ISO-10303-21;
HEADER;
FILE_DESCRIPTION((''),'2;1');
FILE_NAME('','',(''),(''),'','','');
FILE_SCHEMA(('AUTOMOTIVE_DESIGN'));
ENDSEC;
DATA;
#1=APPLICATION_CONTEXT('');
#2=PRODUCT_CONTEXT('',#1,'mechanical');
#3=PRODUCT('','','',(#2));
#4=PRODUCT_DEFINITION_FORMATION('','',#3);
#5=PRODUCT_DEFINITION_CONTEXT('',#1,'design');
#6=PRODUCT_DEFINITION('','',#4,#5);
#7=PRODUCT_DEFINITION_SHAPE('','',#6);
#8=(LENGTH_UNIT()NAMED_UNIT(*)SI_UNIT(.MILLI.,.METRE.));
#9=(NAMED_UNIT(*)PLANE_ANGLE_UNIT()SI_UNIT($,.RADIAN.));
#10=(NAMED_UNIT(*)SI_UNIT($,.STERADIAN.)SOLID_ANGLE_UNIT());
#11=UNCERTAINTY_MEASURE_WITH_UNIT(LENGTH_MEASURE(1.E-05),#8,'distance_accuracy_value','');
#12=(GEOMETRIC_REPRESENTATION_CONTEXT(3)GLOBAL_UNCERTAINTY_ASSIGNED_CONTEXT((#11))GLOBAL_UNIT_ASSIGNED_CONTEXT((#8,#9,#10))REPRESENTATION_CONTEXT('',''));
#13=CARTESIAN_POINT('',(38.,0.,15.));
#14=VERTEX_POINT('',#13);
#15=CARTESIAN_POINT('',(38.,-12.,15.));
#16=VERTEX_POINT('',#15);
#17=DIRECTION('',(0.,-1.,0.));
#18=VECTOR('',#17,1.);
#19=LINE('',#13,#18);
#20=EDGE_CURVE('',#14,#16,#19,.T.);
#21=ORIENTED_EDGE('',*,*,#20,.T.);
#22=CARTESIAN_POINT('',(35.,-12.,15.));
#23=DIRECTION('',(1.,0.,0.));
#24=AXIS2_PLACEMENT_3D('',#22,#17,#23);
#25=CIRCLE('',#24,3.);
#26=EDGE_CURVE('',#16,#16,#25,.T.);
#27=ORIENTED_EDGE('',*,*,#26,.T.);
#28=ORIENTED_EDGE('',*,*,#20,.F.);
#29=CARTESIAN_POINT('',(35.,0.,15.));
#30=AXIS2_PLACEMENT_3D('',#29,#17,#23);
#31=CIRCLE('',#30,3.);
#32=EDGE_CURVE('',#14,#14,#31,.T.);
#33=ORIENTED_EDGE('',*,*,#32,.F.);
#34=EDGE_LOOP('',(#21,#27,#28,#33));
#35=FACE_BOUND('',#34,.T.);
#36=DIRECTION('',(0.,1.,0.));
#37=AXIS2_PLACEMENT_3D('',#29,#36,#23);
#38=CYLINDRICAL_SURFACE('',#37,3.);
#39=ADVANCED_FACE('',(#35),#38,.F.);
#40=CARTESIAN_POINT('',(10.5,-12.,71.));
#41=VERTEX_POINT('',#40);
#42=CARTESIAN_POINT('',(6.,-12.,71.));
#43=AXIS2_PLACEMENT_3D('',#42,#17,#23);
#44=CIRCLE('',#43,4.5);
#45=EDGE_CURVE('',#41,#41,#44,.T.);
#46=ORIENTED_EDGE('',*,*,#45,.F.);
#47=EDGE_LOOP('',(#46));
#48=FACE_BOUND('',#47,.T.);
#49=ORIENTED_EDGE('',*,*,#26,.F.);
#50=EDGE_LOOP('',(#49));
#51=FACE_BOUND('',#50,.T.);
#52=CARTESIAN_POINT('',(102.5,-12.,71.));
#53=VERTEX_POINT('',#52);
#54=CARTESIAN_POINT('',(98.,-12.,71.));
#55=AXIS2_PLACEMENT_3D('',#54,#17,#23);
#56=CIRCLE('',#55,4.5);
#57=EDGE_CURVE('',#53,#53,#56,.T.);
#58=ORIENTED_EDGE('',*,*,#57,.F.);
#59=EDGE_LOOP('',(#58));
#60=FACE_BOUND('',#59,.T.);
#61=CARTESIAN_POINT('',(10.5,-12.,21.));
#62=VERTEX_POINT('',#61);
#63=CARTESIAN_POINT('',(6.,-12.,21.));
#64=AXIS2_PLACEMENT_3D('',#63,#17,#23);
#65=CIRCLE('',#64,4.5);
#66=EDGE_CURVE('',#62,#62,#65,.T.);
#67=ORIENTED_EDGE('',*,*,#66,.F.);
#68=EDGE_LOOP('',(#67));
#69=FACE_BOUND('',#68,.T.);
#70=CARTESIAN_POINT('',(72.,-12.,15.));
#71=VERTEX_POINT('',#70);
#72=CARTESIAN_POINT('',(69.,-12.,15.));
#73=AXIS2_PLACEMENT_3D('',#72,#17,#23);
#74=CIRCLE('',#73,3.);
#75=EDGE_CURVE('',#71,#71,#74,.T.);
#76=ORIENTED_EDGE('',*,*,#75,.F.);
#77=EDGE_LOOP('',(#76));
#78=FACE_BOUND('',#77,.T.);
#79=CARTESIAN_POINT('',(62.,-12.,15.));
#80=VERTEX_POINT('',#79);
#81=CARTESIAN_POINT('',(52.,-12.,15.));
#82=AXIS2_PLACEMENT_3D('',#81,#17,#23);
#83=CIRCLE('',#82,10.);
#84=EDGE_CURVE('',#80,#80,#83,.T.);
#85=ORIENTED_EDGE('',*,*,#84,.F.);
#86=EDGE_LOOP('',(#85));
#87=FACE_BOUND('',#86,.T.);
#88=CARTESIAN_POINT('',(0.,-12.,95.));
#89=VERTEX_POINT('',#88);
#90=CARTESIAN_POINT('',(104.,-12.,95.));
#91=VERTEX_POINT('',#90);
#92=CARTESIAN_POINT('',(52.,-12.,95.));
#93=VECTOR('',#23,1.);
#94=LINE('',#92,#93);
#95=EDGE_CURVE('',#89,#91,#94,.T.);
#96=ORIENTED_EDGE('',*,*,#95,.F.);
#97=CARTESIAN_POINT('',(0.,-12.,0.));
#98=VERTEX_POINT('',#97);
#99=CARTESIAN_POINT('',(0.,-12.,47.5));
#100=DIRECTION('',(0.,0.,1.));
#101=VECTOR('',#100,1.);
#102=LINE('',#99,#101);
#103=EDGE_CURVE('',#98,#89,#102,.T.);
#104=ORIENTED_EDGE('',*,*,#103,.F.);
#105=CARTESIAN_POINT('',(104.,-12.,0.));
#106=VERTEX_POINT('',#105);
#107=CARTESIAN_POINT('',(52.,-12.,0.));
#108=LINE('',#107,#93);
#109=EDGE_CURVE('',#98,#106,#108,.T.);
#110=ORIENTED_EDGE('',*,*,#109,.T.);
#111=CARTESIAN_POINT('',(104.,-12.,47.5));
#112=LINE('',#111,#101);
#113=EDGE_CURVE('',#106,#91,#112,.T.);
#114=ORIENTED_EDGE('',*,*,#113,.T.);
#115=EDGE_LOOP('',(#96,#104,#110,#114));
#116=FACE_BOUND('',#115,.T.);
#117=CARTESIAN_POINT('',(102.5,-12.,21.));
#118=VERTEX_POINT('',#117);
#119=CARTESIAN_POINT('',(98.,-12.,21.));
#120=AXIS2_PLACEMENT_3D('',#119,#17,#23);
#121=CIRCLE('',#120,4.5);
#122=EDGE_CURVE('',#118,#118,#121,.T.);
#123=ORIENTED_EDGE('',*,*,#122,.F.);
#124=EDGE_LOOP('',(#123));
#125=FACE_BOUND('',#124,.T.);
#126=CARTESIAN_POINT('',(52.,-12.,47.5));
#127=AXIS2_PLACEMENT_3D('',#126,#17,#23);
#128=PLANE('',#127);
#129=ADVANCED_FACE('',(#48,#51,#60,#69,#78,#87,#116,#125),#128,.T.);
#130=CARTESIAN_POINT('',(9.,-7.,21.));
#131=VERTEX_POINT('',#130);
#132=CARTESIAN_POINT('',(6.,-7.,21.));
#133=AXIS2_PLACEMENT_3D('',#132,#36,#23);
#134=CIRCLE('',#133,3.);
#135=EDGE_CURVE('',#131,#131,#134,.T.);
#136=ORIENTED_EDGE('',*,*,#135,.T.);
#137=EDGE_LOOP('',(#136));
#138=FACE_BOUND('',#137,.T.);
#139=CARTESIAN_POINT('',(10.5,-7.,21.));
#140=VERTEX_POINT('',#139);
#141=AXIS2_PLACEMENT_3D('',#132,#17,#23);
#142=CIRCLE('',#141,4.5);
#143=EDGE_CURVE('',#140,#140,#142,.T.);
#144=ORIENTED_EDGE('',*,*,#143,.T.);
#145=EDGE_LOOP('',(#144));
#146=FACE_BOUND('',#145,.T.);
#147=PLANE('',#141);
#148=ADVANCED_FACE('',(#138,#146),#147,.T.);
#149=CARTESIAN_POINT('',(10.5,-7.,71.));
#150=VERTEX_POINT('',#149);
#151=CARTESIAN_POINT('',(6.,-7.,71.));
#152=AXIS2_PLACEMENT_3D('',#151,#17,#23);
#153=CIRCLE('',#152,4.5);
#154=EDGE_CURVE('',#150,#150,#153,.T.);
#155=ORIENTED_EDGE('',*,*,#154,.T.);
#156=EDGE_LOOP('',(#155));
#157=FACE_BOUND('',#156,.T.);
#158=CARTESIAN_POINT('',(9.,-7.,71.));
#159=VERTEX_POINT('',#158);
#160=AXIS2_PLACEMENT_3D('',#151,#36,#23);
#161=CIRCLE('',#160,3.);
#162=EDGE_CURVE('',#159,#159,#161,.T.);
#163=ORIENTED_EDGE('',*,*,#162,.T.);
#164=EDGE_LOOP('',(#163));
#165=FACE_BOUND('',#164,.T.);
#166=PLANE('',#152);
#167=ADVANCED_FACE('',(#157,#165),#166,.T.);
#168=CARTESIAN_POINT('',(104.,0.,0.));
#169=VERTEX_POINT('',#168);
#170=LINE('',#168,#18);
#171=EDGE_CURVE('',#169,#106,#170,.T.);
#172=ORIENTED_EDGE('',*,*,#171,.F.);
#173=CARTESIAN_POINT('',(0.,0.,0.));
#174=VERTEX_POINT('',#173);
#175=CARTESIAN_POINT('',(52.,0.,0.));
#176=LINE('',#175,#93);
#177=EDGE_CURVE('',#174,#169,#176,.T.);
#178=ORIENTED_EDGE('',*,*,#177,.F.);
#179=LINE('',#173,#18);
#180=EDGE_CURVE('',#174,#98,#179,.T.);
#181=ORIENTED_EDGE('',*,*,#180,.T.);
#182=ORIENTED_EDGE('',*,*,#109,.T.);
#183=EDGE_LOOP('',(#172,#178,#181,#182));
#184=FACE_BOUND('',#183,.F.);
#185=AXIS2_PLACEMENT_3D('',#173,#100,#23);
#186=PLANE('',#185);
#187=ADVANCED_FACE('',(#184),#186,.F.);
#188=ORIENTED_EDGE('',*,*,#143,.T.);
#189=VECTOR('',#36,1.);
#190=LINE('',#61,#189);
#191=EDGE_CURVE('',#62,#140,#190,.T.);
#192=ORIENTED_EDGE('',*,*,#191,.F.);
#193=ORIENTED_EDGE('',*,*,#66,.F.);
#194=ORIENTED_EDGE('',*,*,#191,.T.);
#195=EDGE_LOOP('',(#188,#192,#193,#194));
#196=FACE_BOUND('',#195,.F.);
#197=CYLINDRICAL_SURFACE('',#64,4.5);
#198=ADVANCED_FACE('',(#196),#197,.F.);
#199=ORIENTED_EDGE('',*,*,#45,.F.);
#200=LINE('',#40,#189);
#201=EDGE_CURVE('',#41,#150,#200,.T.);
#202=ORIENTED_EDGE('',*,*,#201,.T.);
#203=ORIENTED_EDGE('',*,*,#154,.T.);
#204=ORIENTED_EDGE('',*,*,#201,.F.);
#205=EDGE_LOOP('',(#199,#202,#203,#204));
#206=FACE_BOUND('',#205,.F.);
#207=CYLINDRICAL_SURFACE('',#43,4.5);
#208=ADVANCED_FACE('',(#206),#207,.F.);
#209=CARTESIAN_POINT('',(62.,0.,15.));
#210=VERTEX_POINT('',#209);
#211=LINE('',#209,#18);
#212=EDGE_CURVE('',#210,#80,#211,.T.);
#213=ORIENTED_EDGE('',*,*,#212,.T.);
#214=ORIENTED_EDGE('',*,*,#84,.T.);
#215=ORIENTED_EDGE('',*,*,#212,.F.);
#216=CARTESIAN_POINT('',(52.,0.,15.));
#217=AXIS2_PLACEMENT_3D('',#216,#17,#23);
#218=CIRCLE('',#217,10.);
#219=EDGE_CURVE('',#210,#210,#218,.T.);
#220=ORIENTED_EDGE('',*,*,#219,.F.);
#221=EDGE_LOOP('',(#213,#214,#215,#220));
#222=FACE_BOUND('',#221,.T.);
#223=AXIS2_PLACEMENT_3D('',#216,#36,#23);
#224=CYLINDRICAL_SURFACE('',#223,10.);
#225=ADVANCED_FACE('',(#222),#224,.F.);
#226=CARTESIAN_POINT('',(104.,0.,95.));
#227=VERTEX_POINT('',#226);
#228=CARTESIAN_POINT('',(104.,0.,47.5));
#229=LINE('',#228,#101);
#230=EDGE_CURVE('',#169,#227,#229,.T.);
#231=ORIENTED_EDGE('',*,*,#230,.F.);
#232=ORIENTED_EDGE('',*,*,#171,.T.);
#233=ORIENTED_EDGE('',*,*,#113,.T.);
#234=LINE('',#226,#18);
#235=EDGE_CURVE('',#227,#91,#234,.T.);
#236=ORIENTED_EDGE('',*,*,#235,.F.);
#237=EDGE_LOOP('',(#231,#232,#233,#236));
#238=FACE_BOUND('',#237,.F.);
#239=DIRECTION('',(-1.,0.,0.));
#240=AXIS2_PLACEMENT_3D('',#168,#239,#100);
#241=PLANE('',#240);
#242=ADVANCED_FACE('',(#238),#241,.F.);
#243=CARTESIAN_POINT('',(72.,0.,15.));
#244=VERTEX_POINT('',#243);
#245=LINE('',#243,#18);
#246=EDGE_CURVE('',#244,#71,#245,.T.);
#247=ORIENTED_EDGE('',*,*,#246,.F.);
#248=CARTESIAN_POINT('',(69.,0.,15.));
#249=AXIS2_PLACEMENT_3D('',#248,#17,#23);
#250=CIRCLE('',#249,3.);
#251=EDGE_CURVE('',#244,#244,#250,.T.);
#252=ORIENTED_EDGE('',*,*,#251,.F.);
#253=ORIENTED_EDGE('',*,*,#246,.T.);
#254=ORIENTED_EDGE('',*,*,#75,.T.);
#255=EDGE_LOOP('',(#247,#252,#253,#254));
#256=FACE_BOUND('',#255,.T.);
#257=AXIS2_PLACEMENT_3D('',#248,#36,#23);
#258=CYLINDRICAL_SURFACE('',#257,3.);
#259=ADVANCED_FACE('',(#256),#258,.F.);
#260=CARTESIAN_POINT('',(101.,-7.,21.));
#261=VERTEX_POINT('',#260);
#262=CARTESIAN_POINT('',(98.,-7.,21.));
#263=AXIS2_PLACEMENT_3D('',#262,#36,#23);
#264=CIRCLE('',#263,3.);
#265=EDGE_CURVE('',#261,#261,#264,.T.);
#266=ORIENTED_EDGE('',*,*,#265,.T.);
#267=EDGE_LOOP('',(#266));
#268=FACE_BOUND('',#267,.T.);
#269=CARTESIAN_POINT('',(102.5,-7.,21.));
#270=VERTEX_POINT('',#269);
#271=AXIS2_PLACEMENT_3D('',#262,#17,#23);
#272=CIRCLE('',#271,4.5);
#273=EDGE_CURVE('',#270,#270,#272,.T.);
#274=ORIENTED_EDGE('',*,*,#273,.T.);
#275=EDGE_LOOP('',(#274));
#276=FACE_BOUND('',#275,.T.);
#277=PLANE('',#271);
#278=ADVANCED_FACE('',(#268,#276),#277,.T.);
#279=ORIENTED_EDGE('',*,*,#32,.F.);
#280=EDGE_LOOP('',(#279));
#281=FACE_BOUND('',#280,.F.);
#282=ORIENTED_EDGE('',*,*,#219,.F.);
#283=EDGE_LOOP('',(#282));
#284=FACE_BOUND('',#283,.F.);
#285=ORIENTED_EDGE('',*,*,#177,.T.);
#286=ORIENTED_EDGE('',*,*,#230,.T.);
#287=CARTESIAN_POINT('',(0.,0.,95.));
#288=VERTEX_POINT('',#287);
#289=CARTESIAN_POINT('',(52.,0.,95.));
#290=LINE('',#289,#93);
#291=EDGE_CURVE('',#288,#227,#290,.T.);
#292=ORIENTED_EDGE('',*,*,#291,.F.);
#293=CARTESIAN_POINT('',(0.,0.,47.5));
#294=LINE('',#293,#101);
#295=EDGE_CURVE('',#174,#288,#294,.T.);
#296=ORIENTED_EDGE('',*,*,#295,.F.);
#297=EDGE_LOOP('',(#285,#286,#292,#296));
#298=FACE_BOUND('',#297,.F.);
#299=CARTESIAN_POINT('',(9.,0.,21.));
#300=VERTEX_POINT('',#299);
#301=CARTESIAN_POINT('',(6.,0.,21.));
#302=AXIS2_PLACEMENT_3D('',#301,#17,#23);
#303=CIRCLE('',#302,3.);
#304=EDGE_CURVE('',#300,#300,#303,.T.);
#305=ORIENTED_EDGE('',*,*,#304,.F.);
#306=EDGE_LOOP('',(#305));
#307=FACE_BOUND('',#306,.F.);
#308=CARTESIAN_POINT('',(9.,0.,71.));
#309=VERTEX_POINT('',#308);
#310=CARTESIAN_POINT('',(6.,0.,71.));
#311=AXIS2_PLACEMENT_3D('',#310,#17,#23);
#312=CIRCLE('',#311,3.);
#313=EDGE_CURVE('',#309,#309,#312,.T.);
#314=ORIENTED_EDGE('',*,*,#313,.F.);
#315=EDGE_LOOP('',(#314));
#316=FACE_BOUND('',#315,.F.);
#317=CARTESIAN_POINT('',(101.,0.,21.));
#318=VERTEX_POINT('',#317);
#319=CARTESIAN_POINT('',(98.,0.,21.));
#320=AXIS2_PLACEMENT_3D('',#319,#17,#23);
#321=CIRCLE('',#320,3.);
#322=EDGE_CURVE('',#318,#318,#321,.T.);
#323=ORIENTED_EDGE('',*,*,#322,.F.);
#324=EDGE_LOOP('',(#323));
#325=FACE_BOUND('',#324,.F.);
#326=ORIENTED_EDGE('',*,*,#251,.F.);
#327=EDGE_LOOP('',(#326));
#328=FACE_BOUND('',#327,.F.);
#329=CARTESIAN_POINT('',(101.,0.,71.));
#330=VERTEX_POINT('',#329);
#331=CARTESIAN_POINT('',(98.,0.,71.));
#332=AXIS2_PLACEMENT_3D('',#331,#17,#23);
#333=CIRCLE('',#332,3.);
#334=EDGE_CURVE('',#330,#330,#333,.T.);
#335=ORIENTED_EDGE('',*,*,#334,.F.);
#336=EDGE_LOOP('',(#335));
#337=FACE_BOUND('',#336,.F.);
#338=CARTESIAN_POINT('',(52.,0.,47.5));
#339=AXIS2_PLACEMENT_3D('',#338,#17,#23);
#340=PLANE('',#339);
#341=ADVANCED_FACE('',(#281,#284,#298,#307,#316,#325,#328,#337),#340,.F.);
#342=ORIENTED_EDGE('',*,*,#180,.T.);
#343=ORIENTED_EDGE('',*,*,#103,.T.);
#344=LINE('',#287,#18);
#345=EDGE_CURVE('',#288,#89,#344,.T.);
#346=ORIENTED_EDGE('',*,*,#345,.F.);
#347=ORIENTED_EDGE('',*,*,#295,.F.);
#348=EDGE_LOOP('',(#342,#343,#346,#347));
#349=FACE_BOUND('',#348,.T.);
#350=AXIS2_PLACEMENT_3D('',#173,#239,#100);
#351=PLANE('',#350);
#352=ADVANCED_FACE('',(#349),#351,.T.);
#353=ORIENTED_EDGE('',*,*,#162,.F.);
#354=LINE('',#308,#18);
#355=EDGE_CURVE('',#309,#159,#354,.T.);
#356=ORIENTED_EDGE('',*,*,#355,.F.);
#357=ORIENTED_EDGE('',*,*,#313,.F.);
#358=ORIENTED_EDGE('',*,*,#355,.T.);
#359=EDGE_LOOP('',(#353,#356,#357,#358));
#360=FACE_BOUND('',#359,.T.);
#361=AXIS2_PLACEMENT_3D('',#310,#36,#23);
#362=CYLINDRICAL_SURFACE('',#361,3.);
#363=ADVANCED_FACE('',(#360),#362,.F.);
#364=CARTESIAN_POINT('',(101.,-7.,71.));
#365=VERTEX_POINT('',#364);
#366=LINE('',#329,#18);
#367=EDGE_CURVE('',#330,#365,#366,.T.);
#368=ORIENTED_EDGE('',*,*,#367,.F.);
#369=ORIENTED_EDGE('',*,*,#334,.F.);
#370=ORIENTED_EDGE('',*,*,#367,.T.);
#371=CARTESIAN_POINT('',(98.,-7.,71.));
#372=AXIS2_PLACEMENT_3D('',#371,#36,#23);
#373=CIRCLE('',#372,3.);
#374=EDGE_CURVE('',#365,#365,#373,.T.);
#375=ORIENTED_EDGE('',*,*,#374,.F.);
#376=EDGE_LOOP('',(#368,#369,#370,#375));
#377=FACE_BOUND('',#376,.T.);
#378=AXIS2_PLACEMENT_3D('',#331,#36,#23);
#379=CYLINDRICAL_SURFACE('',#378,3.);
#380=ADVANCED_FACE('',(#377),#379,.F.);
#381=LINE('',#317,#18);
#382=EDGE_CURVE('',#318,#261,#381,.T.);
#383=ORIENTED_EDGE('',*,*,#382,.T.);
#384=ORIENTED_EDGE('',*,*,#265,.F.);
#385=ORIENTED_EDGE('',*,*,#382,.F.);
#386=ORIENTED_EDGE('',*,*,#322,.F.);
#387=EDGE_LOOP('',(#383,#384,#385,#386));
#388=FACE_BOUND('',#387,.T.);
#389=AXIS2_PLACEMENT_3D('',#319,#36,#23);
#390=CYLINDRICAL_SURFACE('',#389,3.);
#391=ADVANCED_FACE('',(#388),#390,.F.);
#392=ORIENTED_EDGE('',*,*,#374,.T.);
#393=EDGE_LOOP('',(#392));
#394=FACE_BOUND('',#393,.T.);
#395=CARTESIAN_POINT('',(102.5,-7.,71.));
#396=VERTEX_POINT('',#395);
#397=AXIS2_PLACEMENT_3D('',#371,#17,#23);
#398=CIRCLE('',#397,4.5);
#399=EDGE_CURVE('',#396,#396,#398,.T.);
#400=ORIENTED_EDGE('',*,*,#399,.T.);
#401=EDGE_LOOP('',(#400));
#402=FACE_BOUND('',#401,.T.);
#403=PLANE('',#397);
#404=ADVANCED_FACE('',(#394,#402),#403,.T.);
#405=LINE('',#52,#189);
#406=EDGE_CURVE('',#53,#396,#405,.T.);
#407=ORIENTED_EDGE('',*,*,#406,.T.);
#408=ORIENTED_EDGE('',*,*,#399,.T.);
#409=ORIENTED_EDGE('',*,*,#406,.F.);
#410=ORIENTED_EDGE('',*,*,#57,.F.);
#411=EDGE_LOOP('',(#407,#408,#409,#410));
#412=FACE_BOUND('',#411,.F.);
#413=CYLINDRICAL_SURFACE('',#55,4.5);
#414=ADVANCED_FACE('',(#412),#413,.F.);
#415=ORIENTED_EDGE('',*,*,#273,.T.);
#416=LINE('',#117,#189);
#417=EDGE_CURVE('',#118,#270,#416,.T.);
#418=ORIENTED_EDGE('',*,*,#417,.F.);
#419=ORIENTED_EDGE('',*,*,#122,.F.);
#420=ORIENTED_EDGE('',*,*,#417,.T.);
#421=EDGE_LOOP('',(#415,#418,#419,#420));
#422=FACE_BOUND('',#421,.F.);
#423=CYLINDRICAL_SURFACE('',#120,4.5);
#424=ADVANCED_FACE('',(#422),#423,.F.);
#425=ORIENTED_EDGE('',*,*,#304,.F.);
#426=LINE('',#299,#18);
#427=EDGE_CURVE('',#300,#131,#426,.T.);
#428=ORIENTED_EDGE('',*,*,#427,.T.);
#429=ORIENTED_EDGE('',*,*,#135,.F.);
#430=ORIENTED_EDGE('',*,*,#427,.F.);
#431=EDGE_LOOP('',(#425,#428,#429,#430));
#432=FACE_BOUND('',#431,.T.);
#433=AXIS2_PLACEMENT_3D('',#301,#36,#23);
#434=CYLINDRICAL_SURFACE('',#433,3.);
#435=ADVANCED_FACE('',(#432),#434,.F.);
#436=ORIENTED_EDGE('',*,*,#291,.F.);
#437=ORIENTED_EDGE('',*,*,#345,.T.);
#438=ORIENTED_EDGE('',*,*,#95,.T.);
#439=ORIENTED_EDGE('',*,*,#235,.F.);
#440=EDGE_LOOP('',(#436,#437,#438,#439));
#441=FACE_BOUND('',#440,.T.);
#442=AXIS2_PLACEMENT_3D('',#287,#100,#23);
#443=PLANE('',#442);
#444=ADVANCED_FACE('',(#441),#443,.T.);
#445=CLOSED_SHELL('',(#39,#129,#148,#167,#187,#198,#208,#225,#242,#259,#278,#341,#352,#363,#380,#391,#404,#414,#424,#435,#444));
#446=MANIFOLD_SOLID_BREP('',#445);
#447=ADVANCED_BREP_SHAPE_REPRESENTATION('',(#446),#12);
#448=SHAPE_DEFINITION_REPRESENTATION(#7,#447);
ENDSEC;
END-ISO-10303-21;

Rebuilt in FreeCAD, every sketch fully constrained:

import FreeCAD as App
import Part
import Sketcher
Q = App.Units.Quantity


def add_polygon(sketch, points):
    """Adds a closed chain of lines whose ends are joined by coincident constraints."""
    first, n = sketch.GeometryCount, len(points)
    for a, b in zip(points, points[1:] + points[:1]):
        sketch.addGeometry(Part.LineSegment(App.Vector(*a, 0), App.Vector(*b, 0)), False)
    for i in range(n):
        sketch.addConstraint(Sketcher.Constraint("Coincident", first + i, 2, first + (i + 1) % n, 1))

doc = App.newDocument("Part")
params = doc.addObject("Spreadsheet::Sheet", "Params")
for row, (alias, value) in enumerate([
    ("sketch1_diameter", "6 mm"),
    ("sketch1_diameter2", "20 mm"),
    ("sketch1_width", "104 mm"),
    ("sketch1_height", "95 mm"),
    ("pad1_length", "12 mm"),
    ("sketch2_diameter", "9 mm"),
    ("pocket1_length", "5 mm"),
], start=1):
    params.set(f"A{row}", alias)
    params.set(f"B{row}", "=" + value)
    params.setAlias(f"B{row}", alias)

body = doc.addObject("PartDesign::Body", "Body")

sketch1 = body.newObject("Sketcher::SketchObject", "Sketch")
sketch1.AttachmentSupport = (doc.getObject("XZ_Plane"), [""])
sketch1.MapMode = "FlatFace"
add_polygon(sketch1, [(0, 95), (0, 0), (104, 0), (104, 95)])
sketch1.addGeometry(Part.Circle(App.Vector(6, 21, 0), App.Vector(0, 0, 1), 3), False)
sketch1.addGeometry(Part.Circle(App.Vector(35, 15, 0), App.Vector(0, 0, 1), 3), False)
sketch1.addGeometry(Part.Circle(App.Vector(52, 15, 0), App.Vector(0, 0, 1), 10), False)
sketch1.addGeometry(Part.Circle(App.Vector(69, 15, 0), App.Vector(0, 0, 1), 3), False)
sketch1.addGeometry(Part.Circle(App.Vector(98, 21, 0), App.Vector(0, 0, 1), 3), False)
sketch1.addGeometry(Part.Circle(App.Vector(6, 71, 0), App.Vector(0, 0, 1), 3), False)
sketch1.addGeometry(Part.Circle(App.Vector(98, 71, 0), App.Vector(0, 0, 1), 3), False)
sketch1.addConstraint([
    Sketcher.Constraint("Vertical", 0),
    Sketcher.Constraint("Horizontal", 1),
    Sketcher.Constraint("Vertical", 2),
    Sketcher.Constraint("Horizontal", 3),
    Sketcher.Constraint("Coincident", 0, 2, -1, 1),
    Sketcher.Constraint("Equal", 4, 5),
    Sketcher.Constraint("Equal", 5, 7),
    Sketcher.Constraint("Equal", 7, 8),
    Sketcher.Constraint("Equal", 8, 9),
    Sketcher.Constraint("Equal", 9, 10),
    Sketcher.Constraint("Horizontal", 5, 3, 6, 3),
    Sketcher.Constraint("Horizontal", 6, 3, 7, 3),
    Sketcher.Constraint("Horizontal", 4, 3, 8, 3),
    Sketcher.Constraint("Horizontal", 9, 3, 10, 3),
    Sketcher.Constraint("Vertical", 4, 3, 9, 3),
    Sketcher.Constraint("Vertical", 8, 3, 10, 3),
    Sketcher.Constraint("Diameter", 4, Q("6 mm")),
    Sketcher.Constraint("Diameter", 6, Q("20 mm")),
    Sketcher.Constraint("DistanceX", 1, 1, 1, 2, Q("104 mm")),
    Sketcher.Constraint("DistanceY", 0, 2, 0, 1, Q("95 mm")),
    Sketcher.Constraint("DistanceX", -1, 1, 4, 3, Q("6 mm")),
    Sketcher.Constraint("DistanceY", -1, 1, 4, 3, Q("21 mm")),
    Sketcher.Constraint("DistanceX", -1, 1, 5, 3, Q("35 mm")),
    Sketcher.Constraint("DistanceY", -1, 1, 5, 3, Q("15 mm")),
    Sketcher.Constraint("DistanceX", -1, 1, 6, 3, Q("52 mm")),
    Sketcher.Constraint("DistanceX", -1, 1, 7, 3, Q("69 mm")),
    Sketcher.Constraint("DistanceX", -1, 1, 8, 3, Q("98 mm")),
    Sketcher.Constraint("DistanceY", -1, 1, 9, 3, Q("71 mm")),
])
sketch1.setExpression("Constraints[20]", "Params.sketch1_diameter")
sketch1.setExpression("Constraints[21]", "Params.sketch1_diameter2")
sketch1.setExpression("Constraints[22]", "Params.sketch1_width")
sketch1.setExpression("Constraints[23]", "Params.sketch1_height")
pad1 = body.newObject("PartDesign::Pad", "Pad")
pad1.Profile = sketch1
pad1.setExpression("Length", "Params.pad1_length")

sketch2 = body.newObject("Sketcher::SketchObject", "Sketch001")
sketch2.AttachmentSupport = (doc.getObject("XZ_Plane"), [""])
sketch2.MapMode = "FlatFace"
sketch2.AttachmentOffset = App.Placement(App.Vector(0, 0, 12), App.Rotation())
sketch2.addGeometry([
    Part.Circle(App.Vector(6, 71, 0), App.Vector(0, 0, 1), 4.5),
    Part.Circle(App.Vector(98, 71, 0), App.Vector(0, 0, 1), 4.5),
    Part.Circle(App.Vector(98, 21, 0), App.Vector(0, 0, 1), 4.5),
    Part.Circle(App.Vector(6, 21, 0), App.Vector(0, 0, 1), 4.5),
], False)
sketch2.addConstraint([
    Sketcher.Constraint("Equal", 0, 1),
    Sketcher.Constraint("Equal", 1, 2),
    Sketcher.Constraint("Equal", 2, 3),
    Sketcher.Constraint("Horizontal", 0, 3, 1, 3),
    Sketcher.Constraint("Horizontal", 2, 3, 3, 3),
    Sketcher.Constraint("Vertical", 1, 3, 2, 3),
    Sketcher.Constraint("Vertical", 0, 3, 3, 3),
    Sketcher.Constraint("Diameter", 0, Q("9 mm")),
    Sketcher.Constraint("DistanceX", -1, 1, 0, 3, Q("6 mm")),
    Sketcher.Constraint("DistanceY", -1, 1, 0, 3, Q("71 mm")),
    Sketcher.Constraint("DistanceX", -1, 1, 1, 3, Q("98 mm")),
    Sketcher.Constraint("DistanceY", -1, 1, 2, 3, Q("21 mm")),
])
sketch2.setExpression("Constraints[7]", "Params.sketch2_diameter")
pocket1 = body.newObject("PartDesign::Pocket", "Pocket")
pocket1.Profile = sketch2
pocket1.setExpression("Length", "Params.pocket1_length")

doc.recompute()
